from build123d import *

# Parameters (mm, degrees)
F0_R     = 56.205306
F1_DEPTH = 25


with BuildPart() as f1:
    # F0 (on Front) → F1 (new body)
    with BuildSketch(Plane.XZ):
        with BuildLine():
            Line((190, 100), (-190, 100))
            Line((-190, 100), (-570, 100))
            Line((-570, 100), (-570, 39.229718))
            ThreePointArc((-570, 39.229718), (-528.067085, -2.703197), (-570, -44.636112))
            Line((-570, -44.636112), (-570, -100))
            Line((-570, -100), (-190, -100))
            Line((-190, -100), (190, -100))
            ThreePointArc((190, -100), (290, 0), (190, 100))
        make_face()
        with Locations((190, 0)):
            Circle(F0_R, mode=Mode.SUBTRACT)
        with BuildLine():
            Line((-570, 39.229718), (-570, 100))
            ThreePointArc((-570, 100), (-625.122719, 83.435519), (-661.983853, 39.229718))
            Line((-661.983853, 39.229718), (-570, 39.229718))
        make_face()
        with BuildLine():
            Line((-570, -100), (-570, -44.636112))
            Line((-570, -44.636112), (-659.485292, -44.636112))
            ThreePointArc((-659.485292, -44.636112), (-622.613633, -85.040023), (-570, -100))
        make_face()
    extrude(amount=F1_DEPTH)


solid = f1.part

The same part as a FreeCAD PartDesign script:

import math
import FreeCAD as App
import Part
import Sketcher
from FreeCAD import Vector

doc = App.newDocument("Part")
params = doc.addObject("Spreadsheet::Sheet", "Params")
for row, (alias, value) in enumerate([
    ("sketch1_radius", "100 mm"),
    ("sketch1_width", "760 mm"),
    ("pad1_length", "25 mm"),
], start=1):
    params.set(f"A{row}", alias)
    params.set(f"B{row}", "=" + value)
    params.setAlias(f"B{row}", alias)

body = doc.addObject("PartDesign::Body", "Body")

# Sketch on XZ plane
sketch1 = body.newObject("Sketcher::SketchObject", "Sketch")
sketch1.AttachmentSupport = (doc.getObject("XZ_Plane"), [""])
sketch1.MapMode = "FlatFace"
sketch1.addGeometry([
    Part.LineSegment(Vector(190, 100, 0), Vector(-570, 100, 0)),  # 0
    Part.ArcOfCircle(Part.Circle(Vector(-570, 0, 0), Vector(0, 0, 1), 100), math.radians(90), math.radians(157)),  # 1
    Part.LineSegment(Vector(-662, 39, 0), Vector(-570, 39, 0)),  # 2
    Part.ArcOfCircle(Part.Circle(Vector(-570, -3, 0), Vector(0, 0, 1), 42), math.radians(-90), math.radians(90)),  # 3
    Part.LineSegment(Vector(-570, -45, 0), Vector(-659, -45, 0)),  # 4
    Part.ArcOfCircle(Part.Circle(Vector(-570, 0, 0), Vector(0, 0, 1), 100), math.radians(-153), math.radians(-90)),  # 5
    Part.LineSegment(Vector(-570, -100, 0), Vector(190, -100, 0)),  # 6
    Part.ArcOfCircle(Part.Circle(Vector(190, 0, 0), Vector(0, 0, 1), 100), math.radians(-90), math.radians(90)),  # 7
    Part.Circle(Vector(190, 0, 0), Vector(0, 0, 1), 56),  # 8
], False)
sketch1.addConstraint([
    Sketcher.Constraint("Tangent", 0, 2, 1, 1),
    Sketcher.Constraint("Coincident", 1, 2, 2, 1),
    Sketcher.Constraint("Tangent", 2, 2, 3, 2),
    Sketcher.Constraint("Tangent", 3, 1, 4, 1),
    Sketcher.Constraint("Coincident", 4, 2, 5, 1),
    Sketcher.Constraint("Tangent", 5, 2, 6, 1),
    Sketcher.Constraint("Tangent", 6, 2, 7, 1),
    Sketcher.Constraint("Tangent", 7, 2, 0, 1),
    Sketcher.Constraint("Horizontal", 0),
    Sketcher.Constraint("Horizontal", 2),
    Sketcher.Constraint("Horizontal", 4),
    Sketcher.Constraint("Horizontal", 6),
    Sketcher.Constraint("Coincident", 5, 3, 1, 3),
    Sketcher.Constraint("Coincident", 8, 3, 7, 3),
    Sketcher.Constraint("Equal", 1, 7),
    Sketcher.Constraint("PointOnObject", 1, 3, -1),
    Sketcher.Constraint("Vertical", 1, 3, 3, 3),
    Sketcher.Constraint("Radius", 1, 100.0),
    Sketcher.Constraint("DistanceX", 0, 2, 0, 1, 760.0),
    Sketcher.Constraint("DistanceX", 1, 3, -1, 1, 570.0),
    Sketcher.Constraint("Diameter", 8, 112.410612),
    Sketcher.Constraint("Radius", 3, 41.932915),
    Sketcher.Constraint("DistanceX", 4, 2, 4, 1, 89.485292),
])
sketch1.setExpression("Constraints[17]", "Params.sketch1_radius")
sketch1.setExpression("Constraints[18]", "Params.sketch1_width")
pad1 = body.newObject("PartDesign::Pad", "Pad")
pad1.Profile = sketch1
pad1.setExpression("Length", "Params.pad1_length")

doc.recompute()
